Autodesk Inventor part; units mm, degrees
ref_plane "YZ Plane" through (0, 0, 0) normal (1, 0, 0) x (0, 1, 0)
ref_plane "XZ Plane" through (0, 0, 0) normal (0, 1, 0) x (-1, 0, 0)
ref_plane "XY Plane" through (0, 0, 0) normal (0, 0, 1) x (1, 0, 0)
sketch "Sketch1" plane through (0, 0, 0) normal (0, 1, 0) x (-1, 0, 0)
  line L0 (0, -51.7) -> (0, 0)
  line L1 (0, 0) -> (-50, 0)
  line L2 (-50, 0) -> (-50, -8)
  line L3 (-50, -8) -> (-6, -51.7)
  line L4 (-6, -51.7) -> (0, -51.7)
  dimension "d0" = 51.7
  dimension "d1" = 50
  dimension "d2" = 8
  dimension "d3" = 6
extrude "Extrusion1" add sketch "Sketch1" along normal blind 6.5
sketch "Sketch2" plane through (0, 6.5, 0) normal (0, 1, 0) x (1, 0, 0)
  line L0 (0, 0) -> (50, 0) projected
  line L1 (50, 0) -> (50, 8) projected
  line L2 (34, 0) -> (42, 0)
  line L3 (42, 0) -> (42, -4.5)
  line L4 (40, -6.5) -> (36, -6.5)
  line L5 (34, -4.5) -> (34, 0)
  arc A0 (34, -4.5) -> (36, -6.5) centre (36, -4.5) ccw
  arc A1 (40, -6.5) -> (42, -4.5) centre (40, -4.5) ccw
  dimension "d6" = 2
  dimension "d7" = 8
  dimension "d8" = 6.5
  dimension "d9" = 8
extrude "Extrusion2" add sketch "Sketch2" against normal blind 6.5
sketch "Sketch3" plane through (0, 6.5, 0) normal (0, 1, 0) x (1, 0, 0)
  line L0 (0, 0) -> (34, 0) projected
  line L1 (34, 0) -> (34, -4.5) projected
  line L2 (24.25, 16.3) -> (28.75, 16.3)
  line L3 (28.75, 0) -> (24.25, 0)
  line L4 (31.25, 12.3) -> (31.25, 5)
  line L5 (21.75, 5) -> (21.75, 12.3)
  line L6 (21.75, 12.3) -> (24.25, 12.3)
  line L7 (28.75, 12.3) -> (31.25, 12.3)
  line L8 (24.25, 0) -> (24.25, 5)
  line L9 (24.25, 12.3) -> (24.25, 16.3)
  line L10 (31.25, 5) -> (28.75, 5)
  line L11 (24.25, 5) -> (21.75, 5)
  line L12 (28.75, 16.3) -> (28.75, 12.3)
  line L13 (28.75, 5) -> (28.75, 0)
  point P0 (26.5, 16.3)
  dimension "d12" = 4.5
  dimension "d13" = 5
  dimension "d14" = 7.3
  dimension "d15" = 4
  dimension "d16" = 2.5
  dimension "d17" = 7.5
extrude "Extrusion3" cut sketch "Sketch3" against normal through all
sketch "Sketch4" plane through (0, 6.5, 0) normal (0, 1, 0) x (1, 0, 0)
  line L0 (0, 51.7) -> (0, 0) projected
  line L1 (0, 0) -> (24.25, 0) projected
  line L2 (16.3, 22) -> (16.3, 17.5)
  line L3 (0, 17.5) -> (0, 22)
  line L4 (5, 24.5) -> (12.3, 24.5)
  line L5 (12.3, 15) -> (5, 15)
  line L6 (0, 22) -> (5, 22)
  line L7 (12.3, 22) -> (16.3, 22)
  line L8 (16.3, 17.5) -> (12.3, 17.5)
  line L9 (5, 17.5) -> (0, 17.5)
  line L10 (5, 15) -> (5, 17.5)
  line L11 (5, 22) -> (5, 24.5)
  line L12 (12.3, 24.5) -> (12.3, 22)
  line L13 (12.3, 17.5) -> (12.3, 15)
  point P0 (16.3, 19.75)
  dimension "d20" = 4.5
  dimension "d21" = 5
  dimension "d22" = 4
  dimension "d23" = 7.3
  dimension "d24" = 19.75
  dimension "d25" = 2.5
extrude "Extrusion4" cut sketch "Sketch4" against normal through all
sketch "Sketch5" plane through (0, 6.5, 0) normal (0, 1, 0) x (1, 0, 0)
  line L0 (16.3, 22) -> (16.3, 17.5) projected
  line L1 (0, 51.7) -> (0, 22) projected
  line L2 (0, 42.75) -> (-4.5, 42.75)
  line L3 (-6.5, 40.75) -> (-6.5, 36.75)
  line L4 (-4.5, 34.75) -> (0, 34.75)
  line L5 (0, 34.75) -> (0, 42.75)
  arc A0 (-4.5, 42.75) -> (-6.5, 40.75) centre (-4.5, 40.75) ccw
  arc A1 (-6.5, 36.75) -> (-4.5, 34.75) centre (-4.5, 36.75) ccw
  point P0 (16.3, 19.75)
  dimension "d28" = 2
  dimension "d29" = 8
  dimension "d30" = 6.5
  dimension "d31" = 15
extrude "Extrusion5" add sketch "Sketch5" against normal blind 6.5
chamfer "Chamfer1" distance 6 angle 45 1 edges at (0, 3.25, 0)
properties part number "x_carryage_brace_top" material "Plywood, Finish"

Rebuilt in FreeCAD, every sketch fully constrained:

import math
import FreeCAD as App
import Part
import Sketcher

V = App.Vector


def edges_at(feature, points):
    """Names of the edges that pass closest to the given points."""
    edges = feature.Shape.Edges
    near = lambda p: min(range(len(edges)), key=lambda i: edges[i].distToShape(Part.Vertex(*p))[0])
    return sorted({f"Edge{near(p) + 1}" for p in points})


def add_polygon(sketch, points):
    """Adds a closed chain of lines whose ends are joined by coincident constraints."""
    first, n = sketch.GeometryCount, len(points)
    for a, b in zip(points, points[1:] + points[:1]):
        sketch.addGeometry(Part.LineSegment(App.Vector(*a, 0), App.Vector(*b, 0)), False)
    for i in range(n):
        sketch.addConstraint(Sketcher.Constraint("Coincident", first + i, 2, first + (i + 1) % n, 1))

doc = App.newDocument("Part")
params = doc.addObject("Spreadsheet::Sheet", "Params")
for row, (alias, value) in enumerate([
    ("sketch1_width", "6 mm"),
    ("sketch1_width2", "50 mm"),
    ("sketch1_height", "8 mm"),
    ("sketch1_height2", "51.7 mm"),
    ("pad1_length", "6.5 mm"),
    ("sketch2_radius", "2 mm"),
    ("sketch2_width", "8 mm"),
    ("pad2_length", "6.5 mm"),
    ("sketch3_height", "5 mm"),
    ("sketch3_height2", "4 mm"),
    ("sketch3_width", "4.5 mm"),
    ("sketch3_width2", "2.5 mm"),
    ("sketch3_height3", "7.3 mm"),
    ("sketch4_width", "5 mm"),
    ("sketch4_width2", "4 mm"),
    ("sketch4_width3", "7.3 mm"),
    ("sketch4_height", "4.5 mm"),
    ("sketch4_height2", "2.5 mm"),
    ("sketch5_radius", "2 mm"),
    ("sketch5_height", "8 mm"),
    ("pad3_length", "6.5 mm"),
    ("chamfer_size", "6 mm"),
], start=1):
    params.set(f"A{row}", alias)
    params.set(f"B{row}", "=" + value)
    params.setAlias(f"B{row}", alias)

body = doc.addObject("PartDesign::Body", "Body")

# Sketch on XZ plane
sketch1 = doc.addObject("Sketcher::SketchObject", "Sketch")
body.addObject(sketch1)
sketch1.AttachmentSupport = (doc.XZ_Plane, [""])
sketch1.MapMode = "FlatFace"
add_polygon(sketch1, [(6, -52), (0, -52), (0, 0), (50, 0), (50, -8)])  # lines 0-4
sketch1.addConstraint(Sketcher.Constraint("Horizontal", 0))
sketch1.addConstraint(Sketcher.Constraint("Vertical", 1))
sketch1.addConstraint(Sketcher.Constraint("Horizontal", 2))
sketch1.addConstraint(Sketcher.Constraint("Vertical", 3))
sketch1.addConstraint(Sketcher.Constraint("Coincident", 1, 2, -1, 1))
sketch1.addConstraint(Sketcher.Constraint("DistanceX", 0, 2, 0, 1, 6.0))
sketch1.addConstraint(Sketcher.Constraint("DistanceX", 2, 1, 2, 2, 50.0))
sketch1.addConstraint(Sketcher.Constraint("DistanceY", 3, 2, 3, 1, 8.0))
sketch1.addConstraint(Sketcher.Constraint("DistanceY", 1, 1, 1, 2, 51.7))
sketch1.setExpression("Constraints[10]", "Params.sketch1_width")
sketch1.setExpression("Constraints[11]", "Params.sketch1_width2")
sketch1.setExpression("Constraints[12]", "Params.sketch1_height")
sketch1.setExpression("Constraints[13]", "Params.sketch1_height2")
pad1 = doc.addObject("PartDesign::Pad", "Pad")
body.addObject(pad1)
pad1.Profile = sketch1
pad1.setExpression("Length", "Params.pad1_length")
pad1.Reversed = True

# Sketch on XZ plane
sketch2 = doc.addObject("Sketcher::SketchObject", "Sketch001")
body.addObject(sketch2)
sketch2.AttachmentSupport = (doc.XZ_Plane, [""])
sketch2.MapMode = "FlatFace"
sketch2.AttachmentOffset = App.Placement(V(0, 0, -6.5), App.Rotation())
sketch2.addGeometry(Part.LineSegment(V(42, 0, 0), V(34, 0, 0)), False)
sketch2.addGeometry(Part.LineSegment(V(34, 0, 0), V(34, 4.5, 0)), False)
sketch2.addGeometry(Part.ArcOfCircle(Part.Circle(V(36, 4.5, 0), V(0, 0, 1), 2), math.radians(90), math.radians(180)), False)
sketch2.addGeometry(Part.LineSegment(V(36, 6.5, 0), V(40, 6.5, 0)), False)
sketch2.addGeometry(Part.ArcOfCircle(Part.Circle(V(40, 4.5, 0), V(0, 0, 1), 2), math.radians(0), math.radians(90)), False)
sketch2.addGeometry(Part.LineSegment(V(42, 4.5, 0), V(42, 0, 0)), False)
sketch2.addConstraint(Sketcher.Constraint("Coincident", 0, 2, 1, 1))
sketch2.addConstraint(Sketcher.Constraint("Tangent", 1, 2, 2, 2))
sketch2.addConstraint(Sketcher.Constraint("Tangent", 2, 1, 3, 1))
sketch2.addConstraint(Sketcher.Constraint("Tangent", 3, 2, 4, 2))
sketch2.addConstraint(Sketcher.Constraint("Tangent", 4, 1, 5, 1))
sketch2.addConstraint(Sketcher.Constraint("Coincident", 5, 2, 0, 1))
sketch2.addConstraint(Sketcher.Constraint("Horizontal", 0))
sketch2.addConstraint(Sketcher.Constraint("Vertical", 1))
sketch2.addConstraint(Sketcher.Constraint("Horizontal", 3))
sketch2.addConstraint(Sketcher.Constraint("Vertical", 5))
sketch2.addConstraint(Sketcher.Constraint("Equal", 2, 4))
sketch2.addConstraint(Sketcher.Constraint("PointOnObject", 0, 2, -1))
sketch2.addConstraint(Sketcher.Constraint("Radius", 2, 2.0))
sketch2.addConstraint(Sketcher.Constraint("DistanceX", 0, 2, 0, 1, 8.0))
sketch2.addConstraint(Sketcher.Constraint("DistanceY", -1, 1, 2, 1, 6.5))
sketch2.addConstraint(Sketcher.Constraint("DistanceX", -1, 1, 2, 3, 36.0))
sketch2.setExpression("Constraints[12]", "Params.sketch2_radius")
sketch2.setExpression("Constraints[13]", "Params.sketch2_width")
pad2 = doc.addObject("PartDesign::Pad", "Pad001")
body.addObject(pad2)
pad2.Profile = sketch2
pad2.setExpression("Length", "Params.pad2_length")

# Sketch on XZ plane
sketch3 = doc.addObject("Sketcher::SketchObject", "Sketch002")
body.addObject(sketch3)
sketch3.AttachmentSupport = (doc.XZ_Plane, [""])
sketch3.MapMode = "FlatFace"
sketch3.AttachmentOffset = App.Placement(V(0, 0, -6.5), App.Rotation())
add_polygon(sketch3, [(24.2, -5), (24.2, 0), (28.8, 0), (28.8, -5), (31.2, -5), (31.2, -12.3), (28.8, -12.3), (28.8, -16.3), (24.2, -16.3), (24.2, -12.3), (21.8, -12.3), (21.8, -5)])  # lines 0-11
sketch3.addConstraint(Sketcher.Constraint("Vertical", 0))
sketch3.addConstraint(Sketcher.Constraint("Horizontal", 1))
sketch3.addConstraint(Sketcher.Constraint("Vertical", 2))
sketch3.addConstraint(Sketcher.Constraint("Horizontal", 3))
sketch3.addConstraint(Sketcher.Constraint("Vertical", 4))
sketch3.addConstraint(Sketcher.Constraint("Horizontal", 5))
sketch3.addConstraint(Sketcher.Constraint("Vertical", 6))
sketch3.addConstraint(Sketcher.Constraint("Horizontal", 7))
sketch3.addConstraint(Sketcher.Constraint("Vertical", 8))
sketch3.addConstraint(Sketcher.Constraint("Horizontal", 9))
sketch3.addConstraint(Sketcher.Constraint("Vertical", 10))
sketch3.addConstraint(Sketcher.Constraint("Horizontal", 11))
sketch3.addConstraint(Sketcher.Constraint("PointOnObject", 0, 2, -1))
sketch3.addConstraint(Sketcher.Constraint("Horizontal", 5, 2, 8, 2))
sketch3.addConstraint(Sketcher.Constraint("Horizontal", 3, 2, 10, 2))
sketch3.addConstraint(Sketcher.Constraint("Vertical", 2, 2, 5, 2))
sketch3.addConstraint(Sketcher.Constraint("Vertical", 0, 2, 7, 2))
sketch3.addConstraint(Sketcher.Constraint("Equal", 5, 9))
sketch3.addConstraint(Sketcher.Constraint("DistanceY", 0, 1, 0, 2, 5.0))
sketch3.addConstraint(Sketcher.Constraint("DistanceY", 6, 2, 6, 1, 4.0))
sketch3.addConstraint(Sketcher.Constraint("DistanceX", 1, 1, 1, 2, 4.5))
sketch3.addConstraint(Sketcher.Constraint("DistanceX", 3, 1, 3, 2, 2.5))
sketch3.addConstraint(Sketcher.Constraint("DistanceY", 4, 2, 4, 1, 7.3))
sketch3.addConstraint(Sketcher.Constraint("DistanceX", -1, 1, 0, 2, 24.25))
sketch3.setExpression("Constraints[30]", "Params.sketch3_height")
sketch3.setExpression("Constraints[31]", "Params.sketch3_height2")
sketch3.setExpression("Constraints[32]", "Params.sketch3_width")
sketch3.setExpression("Constraints[33]", "Params.sketch3_width2")
sketch3.setExpression("Constraints[34]", "Params.sketch3_height3")
pocket1 = doc.addObject("PartDesign::Pocket", "Pocket")
body.addObject(pocket1)
pocket1.Profile = sketch3
pocket1.Type = "ThroughAll"
pocket1.Reversed = True

# Sketch on XZ plane
sketch4 = doc.addObject("Sketcher::SketchObject", "Sketch003")
body.addObject(sketch4)
sketch4.AttachmentSupport = (doc.XZ_Plane, [""])
sketch4.MapMode = "FlatFace"
sketch4.AttachmentOffset = App.Placement(V(0, 0, -6.5), App.Rotation())
add_polygon(sketch4, [(5, -22), (0, -22), (0, -17.5), (5, -17.5), (5, -15), (12.3, -15), (12.3, -17.5), (16.3, -17.5), (16.3, -22), (12.3, -22), (12.3, -24.5), (5, -24.5)])  # lines 0-11
sketch4.addConstraint(Sketcher.Constraint("Horizontal", 0))
sketch4.addConstraint(Sketcher.Constraint("Vertical", 1))
sketch4.addConstraint(Sketcher.Constraint("Horizontal", 2))
sketch4.addConstraint(Sketcher.Constraint("Vertical", 3))
sketch4.addConstraint(Sketcher.Constraint("Horizontal", 4))
sketch4.addConstraint(Sketcher.Constraint("Vertical", 5))
sketch4.addConstraint(Sketcher.Constraint("Horizontal", 6))
sketch4.addConstraint(Sketcher.Constraint("Vertical", 7))
sketch4.addConstraint(Sketcher.Constraint("Horizontal", 8))
sketch4.addConstraint(Sketcher.Constraint("Vertical", 9))
sketch4.addConstraint(Sketcher.Constraint("Horizontal", 10))
sketch4.addConstraint(Sketcher.Constraint("Vertical", 11))
sketch4.addConstraint(Sketcher.Constraint("PointOnObject", 0, 2, -2))
sketch4.addConstraint(Sketcher.Constraint("Horizontal", 2, 2, 5, 2))
sketch4.addConstraint(Sketcher.Constraint("Horizontal", 0, 2, 7, 2))
sketch4.addConstraint(Sketcher.Constraint("Vertical", 5, 2, 8, 2))
sketch4.addConstraint(Sketcher.Constraint("Vertical", 3, 2, 10, 2))
sketch4.addConstraint(Sketcher.Constraint("Equal", 5, 9))
sketch4.addConstraint(Sketcher.Constraint("DistanceX", 0, 2, 0, 1, 5.0))
sketch4.addConstraint(Sketcher.Constraint("DistanceX", 6, 1, 6, 2, 4.0))
sketch4.addConstraint(Sketcher.Constraint("DistanceX", 4, 1, 4, 2, 7.3))
sketch4.addConstraint(Sketcher.Constraint("DistanceY", 1, 1, 1, 2, 4.5))
sketch4.addConstraint(Sketcher.Constraint("DistanceY", 3, 1, 3, 2, 2.5))
sketch4.addConstraint(Sketcher.Constraint("DistanceY", 0, 2, -1, 1, 22.0))
sketch4.setExpression("Constraints[30]", "Params.sketch4_width")
sketch4.setExpression("Constraints[31]", "Params.sketch4_width2")
sketch4.setExpression("Constraints[32]", "Params.sketch4_width3")
sketch4.setExpression("Constraints[33]", "Params.sketch4_height")
sketch4.setExpression("Constraints[34]", "Params.sketch4_height2")
pocket2 = doc.addObject("PartDesign::Pocket", "Pocket001")
body.addObject(pocket2)
pocket2.Profile = sketch4
pocket2.Type = "ThroughAll"
pocket2.Reversed = True

# Sketch on XZ plane
sketch5 = doc.addObject("Sketcher::SketchObject", "Sketch004")
body.addObject(sketch5)
sketch5.AttachmentSupport = (doc.XZ_Plane, [""])
sketch5.MapMode = "FlatFace"
sketch5.AttachmentOffset = App.Placement(V(0, 0, -6.5), App.Rotation())
sketch5.addGeometry(Part.LineSegment(V(0, -34.8, 0), V(0, -42.8, 0)), False)
sketch5.addGeometry(Part.LineSegment(V(0, -42.8, 0), V(-4.5, -42.8, 0)), False)
sketch5.addGeometry(Part.ArcOfCircle(Part.Circle(V(-4.5, -40.8, 0), V(0, 0, 1), 2), math.radians(180), math.radians(270)), False)
sketch5.addGeometry(Part.LineSegment(V(-6.5, -40.8, 0), V(-6.5, -36.8, 0)), False)
sketch5.addGeometry(Part.ArcOfCircle(Part.Circle(V(-4.5, -36.8, 0), V(0, 0, 1), 2), math.radians(90), math.radians(180)), False)
sketch5.addGeometry(Part.LineSegment(V(-4.5, -34.8, 0), V(0, -34.8, 0)), False)
sketch5.addConstraint(Sketcher.Constraint("Coincident", 0, 2, 1, 1))
sketch5.addConstraint(Sketcher.Constraint("Tangent", 1, 2, 2, 2))
sketch5.addConstraint(Sketcher.Constraint("Tangent", 2, 1, 3, 1))
sketch5.addConstraint(Sketcher.Constraint("Tangent", 3, 2, 4, 2))
sketch5.addConstraint(Sketcher.Constraint("Tangent", 4, 1, 5, 1))
sketch5.addConstraint(Sketcher.Constraint("Coincident", 5, 2, 0, 1))
sketch5.addConstraint(Sketcher.Constraint("Vertical", 0))
sketch5.addConstraint(Sketcher.Constraint("Horizontal", 1))
sketch5.addConstraint(Sketcher.Constraint("Vertical", 3))
sketch5.addConstraint(Sketcher.Constraint("Horizontal", 5))
sketch5.addConstraint(Sketcher.Constraint("Equal", 2, 4))
sketch5.addConstraint(Sketcher.Constraint("PointOnObject", 0, 2, -2))
sketch5.addConstraint(Sketcher.Constraint("Radius", 2, 2.0))
sketch5.addConstraint(Sketcher.Constraint("DistanceY", 0, 2, 0, 1, 8.0))
sketch5.addConstraint(Sketcher.Constraint("DistanceX", 2, 1, -1, 1, 6.5))
sketch5.addConstraint(Sketcher.Constraint("DistanceY", 2, 3, -1, 1, 40.75))
sketch5.setExpression("Constraints[12]", "Params.sketch5_radius")
sketch5.setExpression("Constraints[13]", "Params.sketch5_height")
pad3 = doc.addObject("PartDesign::Pad", "Pad002")
body.addObject(pad3)
pad3.Profile = sketch5
pad3.setExpression("Length", "Params.pad3_length")
doc.recompute()

chamfer = doc.addObject("PartDesign::Chamfer", "Chamfer")
body.addObject(chamfer)
chamfer.Base = (pad3, edges_at(pad3, [(0, 3.25, 0)]))
chamfer.setExpression("Size", "Params.chamfer_size")

doc.recompute()
